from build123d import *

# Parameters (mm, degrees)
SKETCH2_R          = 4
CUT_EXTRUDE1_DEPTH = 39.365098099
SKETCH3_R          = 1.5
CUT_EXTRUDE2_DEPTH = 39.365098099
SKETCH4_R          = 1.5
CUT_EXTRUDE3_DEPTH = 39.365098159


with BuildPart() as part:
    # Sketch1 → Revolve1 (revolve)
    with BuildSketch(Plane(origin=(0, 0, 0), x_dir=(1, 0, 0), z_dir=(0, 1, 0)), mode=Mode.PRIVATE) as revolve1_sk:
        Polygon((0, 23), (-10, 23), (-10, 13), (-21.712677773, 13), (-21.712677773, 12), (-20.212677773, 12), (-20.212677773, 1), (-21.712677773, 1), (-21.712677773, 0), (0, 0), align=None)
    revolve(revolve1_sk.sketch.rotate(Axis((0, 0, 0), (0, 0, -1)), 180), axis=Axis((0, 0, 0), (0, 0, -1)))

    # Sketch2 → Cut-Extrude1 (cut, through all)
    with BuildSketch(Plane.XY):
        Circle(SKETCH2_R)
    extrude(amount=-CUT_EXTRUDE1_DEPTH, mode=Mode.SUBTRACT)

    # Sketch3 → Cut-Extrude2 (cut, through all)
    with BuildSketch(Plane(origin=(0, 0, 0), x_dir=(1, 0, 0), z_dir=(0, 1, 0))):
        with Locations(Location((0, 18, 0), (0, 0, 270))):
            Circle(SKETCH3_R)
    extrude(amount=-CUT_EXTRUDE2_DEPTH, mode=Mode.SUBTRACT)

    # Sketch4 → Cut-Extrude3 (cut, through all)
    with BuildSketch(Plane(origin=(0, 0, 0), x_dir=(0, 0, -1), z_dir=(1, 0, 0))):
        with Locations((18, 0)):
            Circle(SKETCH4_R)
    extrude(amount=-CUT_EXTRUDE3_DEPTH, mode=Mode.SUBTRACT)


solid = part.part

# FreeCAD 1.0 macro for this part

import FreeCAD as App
import Part
import Sketcher

V = App.Vector
Q = App.Units.Quantity


def add_polygon(sketch, points):
    """Adds a closed chain of lines whose ends are joined by coincident constraints."""
    first, n = sketch.GeometryCount, len(points)
    for a, b in zip(points, points[1:] + points[:1]):
        sketch.addGeometry(Part.LineSegment(App.Vector(*a, 0), App.Vector(*b, 0)), False)
    for i in range(n):
        sketch.addConstraint(Sketcher.Constraint("Coincident", first + i, 2, first + (i + 1) % n, 1))

doc = App.newDocument("Part")
body = doc.addObject("PartDesign::Body", "Body")

sketch1 = doc.addObject("Sketcher::SketchObject", "Sketch")
body.addObject(sketch1)
sketch1.AttachmentSupport = (doc.XZ_Plane, [""])
sketch1.MapMode = "FlatFace"
add_polygon(sketch1, [(0, -23), (-10, -23), (-10, -13), (-21.712678, -13), (-21.712678, -12), (-20.212678, -12), (-20.212678, -1), (-21.712678, -1), (-21.712678, 0), (0, 0)])
sketch1.addConstraint([
    Sketcher.Constraint("Horizontal", 0),
    Sketcher.Constraint("Vertical", 1),
    Sketcher.Constraint("Horizontal", 2),
    Sketcher.Constraint("Vertical", 3),
    Sketcher.Constraint("Horizontal", 4),
    Sketcher.Constraint("Vertical", 5),
    Sketcher.Constraint("Horizontal", 6),
    Sketcher.Constraint("Vertical", 7),
    Sketcher.Constraint("Horizontal", 8),
    Sketcher.Constraint("Vertical", 9),
    Sketcher.Constraint("Coincident", 8, 2, -1, 1),
    Sketcher.Constraint("Vertical", 3, 2, 6, 2),
    Sketcher.Constraint("Equal", 0, 1),
    Sketcher.Constraint("Equal", 3, 7),
    Sketcher.Constraint("DistanceX", 0, 2, 0, 1, Q("10 mm")),
    Sketcher.Constraint("DistanceY", 3, 1, 3, 2, Q("1 mm")),
    Sketcher.Constraint("DistanceY", 5, 1, 5, 2, Q("11 mm")),
    Sketcher.Constraint("DistanceX", 4, 1, 4, 2, Q("1.5 mm")),
    Sketcher.Constraint("DistanceX", 2, 2, 2, 1, Q("11.712678 mm")),
])
revolution = doc.addObject("PartDesign::Revolution", "Revolution")
body.addObject(revolution)
revolution.Profile = sketch1
revolution.ReferenceAxis = (sketch1, ["V_Axis"])
revolution.Angle = 360

sketch2 = doc.addObject("Sketcher::SketchObject", "Sketch001")
body.addObject(sketch2)
sketch2.AttachmentSupport = (doc.XY_Plane, [""])
sketch2.MapMode = "FlatFace"
sketch2.addGeometry(Part.Circle(V(0, 0, 0), V(0, 0, 1), 4), False)
sketch2.addConstraint([
    Sketcher.Constraint("Coincident", 0, 3, -1, 1),
    Sketcher.Constraint("Diameter", 0, Q("8 mm")),
])
pocket1 = doc.addObject("PartDesign::Pocket", "Pocket")
body.addObject(pocket1)
pocket1.Profile = sketch2
pocket1.Type = "ThroughAll"

sketch3 = doc.addObject("Sketcher::SketchObject", "Sketch002")
body.addObject(sketch3)
sketch3.AttachmentSupport = (doc.XZ_Plane, [""])
sketch3.MapMode = "FlatFace"
sketch3.addGeometry(Part.Circle(V(0, -18, 0), V(0, 0, 1), 1.5), False)
sketch3.addConstraint([
    Sketcher.Constraint("PointOnObject", 0, 3, -2),
    Sketcher.Constraint("Diameter", 0, Q("3 mm")),
    Sketcher.Constraint("DistanceY", 0, 3, -1, 1, Q("18 mm")),
])
pocket2 = doc.addObject("PartDesign::Pocket", "Pocket001")
body.addObject(pocket2)
pocket2.Profile = sketch3
pocket2.Type = "ThroughAll"
pocket2.Reversed = True

sketch4 = doc.addObject("Sketcher::SketchObject", "Sketch003")
body.addObject(sketch4)
sketch4.AttachmentSupport = (doc.YZ_Plane, [""])
sketch4.MapMode = "FlatFace"
sketch4.addGeometry(Part.Circle(V(0, -18, 0), V(0, 0, 1), 1.5), False)
sketch4.addConstraint([
    Sketcher.Constraint("PointOnObject", 0, 3, -2),
    Sketcher.Constraint("Diameter", 0, Q("3 mm")),
    Sketcher.Constraint("DistanceY", 0, 3, -1, 1, Q("18 mm")),
])
pocket3 = doc.addObject("PartDesign::Pocket", "Pocket002")
body.addObject(pocket3)
pocket3.Profile = sketch4
pocket3.Type = "ThroughAll"

doc.recompute()
